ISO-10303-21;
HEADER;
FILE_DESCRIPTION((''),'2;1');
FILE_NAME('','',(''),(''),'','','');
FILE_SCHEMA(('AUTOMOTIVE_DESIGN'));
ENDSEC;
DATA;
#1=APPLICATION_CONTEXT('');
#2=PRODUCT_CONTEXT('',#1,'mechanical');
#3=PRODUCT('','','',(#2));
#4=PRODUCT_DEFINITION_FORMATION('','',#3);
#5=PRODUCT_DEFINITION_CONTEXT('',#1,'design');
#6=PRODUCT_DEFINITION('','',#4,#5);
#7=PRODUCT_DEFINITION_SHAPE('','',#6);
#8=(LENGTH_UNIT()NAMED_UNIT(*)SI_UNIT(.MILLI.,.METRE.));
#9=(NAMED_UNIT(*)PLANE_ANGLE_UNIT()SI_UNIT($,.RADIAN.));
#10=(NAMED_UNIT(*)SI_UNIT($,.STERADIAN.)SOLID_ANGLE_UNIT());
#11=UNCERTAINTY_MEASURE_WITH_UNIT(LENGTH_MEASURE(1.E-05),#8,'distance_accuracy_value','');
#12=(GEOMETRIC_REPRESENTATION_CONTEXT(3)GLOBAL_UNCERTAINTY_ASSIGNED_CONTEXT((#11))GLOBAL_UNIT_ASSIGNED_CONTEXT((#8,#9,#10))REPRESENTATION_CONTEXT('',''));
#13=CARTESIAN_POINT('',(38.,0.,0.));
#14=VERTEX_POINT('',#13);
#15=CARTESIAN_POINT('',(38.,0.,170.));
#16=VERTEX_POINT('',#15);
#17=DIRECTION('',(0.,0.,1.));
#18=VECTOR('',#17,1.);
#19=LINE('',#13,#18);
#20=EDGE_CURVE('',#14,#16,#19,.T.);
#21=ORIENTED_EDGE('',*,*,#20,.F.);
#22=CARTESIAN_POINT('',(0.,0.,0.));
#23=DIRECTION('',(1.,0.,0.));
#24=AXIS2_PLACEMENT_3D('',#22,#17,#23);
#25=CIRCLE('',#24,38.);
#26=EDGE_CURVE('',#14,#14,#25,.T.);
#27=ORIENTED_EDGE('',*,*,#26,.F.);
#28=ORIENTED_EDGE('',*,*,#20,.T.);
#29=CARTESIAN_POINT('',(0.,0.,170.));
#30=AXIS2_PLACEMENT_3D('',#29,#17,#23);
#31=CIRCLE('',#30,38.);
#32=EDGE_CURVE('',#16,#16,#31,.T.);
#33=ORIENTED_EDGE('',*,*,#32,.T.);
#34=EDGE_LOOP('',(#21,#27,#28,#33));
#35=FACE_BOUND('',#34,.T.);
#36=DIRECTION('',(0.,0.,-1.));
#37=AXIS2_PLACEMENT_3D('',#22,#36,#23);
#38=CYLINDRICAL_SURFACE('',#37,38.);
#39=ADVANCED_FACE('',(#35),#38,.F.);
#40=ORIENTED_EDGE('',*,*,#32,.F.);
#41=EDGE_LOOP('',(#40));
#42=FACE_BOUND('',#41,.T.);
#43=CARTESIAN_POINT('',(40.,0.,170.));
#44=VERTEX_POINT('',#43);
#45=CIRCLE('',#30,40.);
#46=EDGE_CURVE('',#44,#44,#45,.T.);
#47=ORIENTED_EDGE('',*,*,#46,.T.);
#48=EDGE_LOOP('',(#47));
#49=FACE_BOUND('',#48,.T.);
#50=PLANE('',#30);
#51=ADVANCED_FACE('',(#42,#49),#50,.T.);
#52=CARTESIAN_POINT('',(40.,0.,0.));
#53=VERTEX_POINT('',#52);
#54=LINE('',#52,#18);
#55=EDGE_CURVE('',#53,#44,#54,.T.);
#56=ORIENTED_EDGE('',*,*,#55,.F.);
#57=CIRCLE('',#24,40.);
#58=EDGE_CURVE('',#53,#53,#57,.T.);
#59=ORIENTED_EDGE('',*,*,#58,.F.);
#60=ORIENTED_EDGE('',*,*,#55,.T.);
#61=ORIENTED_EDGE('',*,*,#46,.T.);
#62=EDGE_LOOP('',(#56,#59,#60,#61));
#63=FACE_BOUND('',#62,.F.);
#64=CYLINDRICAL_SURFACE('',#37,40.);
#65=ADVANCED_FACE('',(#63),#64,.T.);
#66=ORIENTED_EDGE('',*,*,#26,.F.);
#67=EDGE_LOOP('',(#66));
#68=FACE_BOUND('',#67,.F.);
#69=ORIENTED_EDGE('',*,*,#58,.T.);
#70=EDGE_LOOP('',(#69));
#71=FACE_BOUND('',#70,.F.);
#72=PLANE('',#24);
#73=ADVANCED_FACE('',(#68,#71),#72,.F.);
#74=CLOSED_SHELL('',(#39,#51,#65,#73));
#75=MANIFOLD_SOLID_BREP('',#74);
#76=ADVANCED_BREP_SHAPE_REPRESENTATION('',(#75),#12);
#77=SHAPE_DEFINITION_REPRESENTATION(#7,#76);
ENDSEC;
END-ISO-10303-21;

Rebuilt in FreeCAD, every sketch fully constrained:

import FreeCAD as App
import Part
import Sketcher

V = App.Vector

doc = App.newDocument("Part")
body = doc.addObject("PartDesign::Body", "Body")

# Sketch on XY plane
sketch1 = body.newObject("Sketcher::SketchObject", "Sketch")
sketch1.AttachmentSupport = (doc.getObject("XY_Plane"), [""])
sketch1.MapMode = "FlatFace"
sketch1.addGeometry(Part.Circle(V(0, 0, 0), V(0, 0, 1), 40), False)
sketch1.addGeometry(Part.Circle(V(0, 0, 0), V(0, 0, 1), 38), False)
sketch1.addConstraint(Sketcher.Constraint("Coincident", 0, 3, -1, 1))
sketch1.addConstraint(Sketcher.Constraint("Coincident", 1, 3, -1, 1))
sketch1.addConstraint(Sketcher.Constraint("Diameter", 0, 80.0))
sketch1.addConstraint(Sketcher.Constraint("Diameter", 1, 76.0))
pad1 = body.newObject("PartDesign::Pad", "Pad")
pad1.Profile = sketch1
pad1.Length = 170

doc.recompute()
